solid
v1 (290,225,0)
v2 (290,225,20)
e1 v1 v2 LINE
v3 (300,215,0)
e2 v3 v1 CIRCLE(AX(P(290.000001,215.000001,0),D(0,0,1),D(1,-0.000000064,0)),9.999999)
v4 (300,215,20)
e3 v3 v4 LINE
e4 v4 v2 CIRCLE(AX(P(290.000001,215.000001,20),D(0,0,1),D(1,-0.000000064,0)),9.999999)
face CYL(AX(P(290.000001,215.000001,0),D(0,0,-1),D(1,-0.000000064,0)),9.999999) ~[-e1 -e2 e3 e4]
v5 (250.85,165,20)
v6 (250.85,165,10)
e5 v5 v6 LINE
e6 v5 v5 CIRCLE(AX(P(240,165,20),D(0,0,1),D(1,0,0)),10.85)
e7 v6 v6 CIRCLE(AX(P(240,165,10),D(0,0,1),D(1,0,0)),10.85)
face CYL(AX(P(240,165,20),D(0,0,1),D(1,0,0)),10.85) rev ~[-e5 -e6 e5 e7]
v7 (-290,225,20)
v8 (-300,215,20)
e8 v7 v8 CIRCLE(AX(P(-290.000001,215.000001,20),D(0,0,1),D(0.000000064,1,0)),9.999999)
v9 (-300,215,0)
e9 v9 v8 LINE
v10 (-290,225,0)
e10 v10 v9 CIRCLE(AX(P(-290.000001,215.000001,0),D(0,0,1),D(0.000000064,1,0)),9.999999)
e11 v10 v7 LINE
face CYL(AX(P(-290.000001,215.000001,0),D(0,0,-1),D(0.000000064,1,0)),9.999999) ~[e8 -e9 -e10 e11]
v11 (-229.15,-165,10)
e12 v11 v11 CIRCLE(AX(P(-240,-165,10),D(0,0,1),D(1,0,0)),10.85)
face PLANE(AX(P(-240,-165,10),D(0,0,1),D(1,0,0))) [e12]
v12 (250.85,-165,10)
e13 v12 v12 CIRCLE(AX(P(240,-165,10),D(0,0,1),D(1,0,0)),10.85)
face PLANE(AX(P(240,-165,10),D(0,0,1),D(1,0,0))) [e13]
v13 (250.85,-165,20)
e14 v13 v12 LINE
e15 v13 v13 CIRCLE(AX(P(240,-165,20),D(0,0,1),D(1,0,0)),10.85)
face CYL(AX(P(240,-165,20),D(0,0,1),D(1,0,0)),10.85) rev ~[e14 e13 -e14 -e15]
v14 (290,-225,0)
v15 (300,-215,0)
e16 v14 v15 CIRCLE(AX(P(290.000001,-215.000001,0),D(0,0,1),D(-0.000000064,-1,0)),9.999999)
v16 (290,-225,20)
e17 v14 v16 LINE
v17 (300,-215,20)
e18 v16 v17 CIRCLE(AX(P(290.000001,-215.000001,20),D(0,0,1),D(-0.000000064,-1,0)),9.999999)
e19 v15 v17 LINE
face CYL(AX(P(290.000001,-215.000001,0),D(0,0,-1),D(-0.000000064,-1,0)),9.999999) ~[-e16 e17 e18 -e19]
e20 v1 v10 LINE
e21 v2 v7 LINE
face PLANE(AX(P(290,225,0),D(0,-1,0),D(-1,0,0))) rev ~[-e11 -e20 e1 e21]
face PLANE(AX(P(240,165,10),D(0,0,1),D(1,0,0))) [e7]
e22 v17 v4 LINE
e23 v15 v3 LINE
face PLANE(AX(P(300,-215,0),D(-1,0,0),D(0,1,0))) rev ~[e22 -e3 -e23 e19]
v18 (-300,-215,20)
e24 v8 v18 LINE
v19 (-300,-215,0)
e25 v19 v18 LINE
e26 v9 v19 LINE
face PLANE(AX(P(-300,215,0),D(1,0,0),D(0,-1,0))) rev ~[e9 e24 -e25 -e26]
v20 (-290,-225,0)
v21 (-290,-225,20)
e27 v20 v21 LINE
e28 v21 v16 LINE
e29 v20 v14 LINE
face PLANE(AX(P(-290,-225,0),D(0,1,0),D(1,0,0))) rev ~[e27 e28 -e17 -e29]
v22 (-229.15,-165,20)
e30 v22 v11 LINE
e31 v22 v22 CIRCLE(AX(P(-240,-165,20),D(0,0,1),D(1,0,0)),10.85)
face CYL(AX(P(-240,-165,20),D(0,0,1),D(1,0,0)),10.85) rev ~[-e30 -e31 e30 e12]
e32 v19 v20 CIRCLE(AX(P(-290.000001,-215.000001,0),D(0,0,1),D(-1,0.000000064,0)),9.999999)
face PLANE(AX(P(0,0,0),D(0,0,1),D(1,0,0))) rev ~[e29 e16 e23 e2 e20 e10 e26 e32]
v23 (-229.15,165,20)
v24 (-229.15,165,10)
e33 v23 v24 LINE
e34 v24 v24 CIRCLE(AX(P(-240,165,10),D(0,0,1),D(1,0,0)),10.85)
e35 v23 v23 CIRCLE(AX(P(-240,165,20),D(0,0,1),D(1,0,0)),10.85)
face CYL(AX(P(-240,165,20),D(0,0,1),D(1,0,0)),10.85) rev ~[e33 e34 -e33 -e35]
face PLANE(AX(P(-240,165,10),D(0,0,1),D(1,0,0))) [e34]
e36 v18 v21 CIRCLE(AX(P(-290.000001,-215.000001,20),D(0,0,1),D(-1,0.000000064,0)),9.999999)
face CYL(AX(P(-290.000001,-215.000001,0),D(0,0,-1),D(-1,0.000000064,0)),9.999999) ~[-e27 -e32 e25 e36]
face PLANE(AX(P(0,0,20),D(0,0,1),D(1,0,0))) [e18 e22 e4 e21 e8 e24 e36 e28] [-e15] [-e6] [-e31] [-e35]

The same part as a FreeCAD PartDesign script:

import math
import FreeCAD as App
import Part
import Sketcher

V = App.Vector

doc = App.newDocument("Part")
body = doc.addObject("PartDesign::Body", "Body")

sketch1 = body.newObject("Sketcher::SketchObject", "Sketch")
sketch1.AttachmentSupport = (doc.getObject("XY_Plane"), [""])
sketch1.MapMode = "FlatFace"
sketch1.addGeometry([
    Part.LineSegment(V(-290, -225, 0), V(290, -225, 0)),
    Part.ArcOfCircle(Part.Circle(V(290, -215, 0), V(0, 0, 1), 10), math.radians(-90), math.radians(0)),
    Part.LineSegment(V(300, -215, 0), V(300, 215, 0)),
    Part.ArcOfCircle(Part.Circle(V(290, 215, 0), V(0, 0, 1), 10), math.radians(0), math.radians(90)),
    Part.LineSegment(V(290, 225, 0), V(-290, 225, 0)),
    Part.ArcOfCircle(Part.Circle(V(-290, 215, 0), V(0, 0, 1), 10), math.radians(90), math.radians(180)),
    Part.LineSegment(V(-300, 215, 0), V(-300, -215, 0)),
    Part.ArcOfCircle(Part.Circle(V(-290, -215, 0), V(0, 0, 1), 10), math.radians(180), math.radians(270)),
], False)
sketch1.addConstraint([
    Sketcher.Constraint("Tangent", 0, 2, 1, 1),
    Sketcher.Constraint("Tangent", 1, 2, 2, 1),
    Sketcher.Constraint("Tangent", 2, 2, 3, 1),
    Sketcher.Constraint("Tangent", 3, 2, 4, 1),
    Sketcher.Constraint("Tangent", 4, 2, 5, 1),
    Sketcher.Constraint("Tangent", 5, 2, 6, 1),
    Sketcher.Constraint("Tangent", 6, 2, 7, 1),
    Sketcher.Constraint("Tangent", 7, 2, 0, 1),
    Sketcher.Constraint("Horizontal", 0),
    Sketcher.Constraint("Vertical", 2),
    Sketcher.Constraint("Horizontal", 4),
    Sketcher.Constraint("Vertical", 6),
    Sketcher.Constraint("Equal", 1, 3),
    Sketcher.Constraint("Equal", 3, 5),
    Sketcher.Constraint("Equal", 5, 7),
    Sketcher.Constraint("Symmetric", 1, 3, 5, 3, -1, 1),
    Sketcher.Constraint("Radius", 1, 9.999999),
    Sketcher.Constraint("DistanceX", 0, 1, 0, 2, 580.0),
    Sketcher.Constraint("DistanceY", 2, 1, 2, 2, 430.0),
])
pad1 = body.newObject("PartDesign::Pad", "Pad")
pad1.Profile = sketch1
pad1.Length = 20

sketch2 = body.newObject("Sketcher::SketchObject", "Sketch001")
sketch2.AttachmentSupport = (doc.getObject("XY_Plane"), [""])
sketch2.MapMode = "FlatFace"
sketch2.AttachmentOffset = App.Placement(V(0, 0, 20), App.Rotation())
sketch2.addGeometry([
    Part.Circle(V(-240, 165, 0), V(0, 0, 1), 11),
    Part.Circle(V(240, 165, 0), V(0, 0, 1), 11),
    Part.Circle(V(240, -165, 0), V(0, 0, 1), 11),
    Part.Circle(V(-240, -165, 0), V(0, 0, 1), 11),
], False)
sketch2.addConstraint([
    Sketcher.Constraint("Equal", 0, 1),
    Sketcher.Constraint("Equal", 1, 2),
    Sketcher.Constraint("Equal", 2, 3),
    Sketcher.Constraint("Symmetric", 0, 3, 2, 3, -1, 1),
    Sketcher.Constraint("Symmetric", 1, 3, 3, 3, -1, 1),
    Sketcher.Constraint("Symmetric", 0, 3, 1, 3, -2),
    Sketcher.Constraint("Diameter", 0, 21.7),
    Sketcher.Constraint("DistanceX", 0, 3, -1, 1, 240.0),
    Sketcher.Constraint("DistanceY", -1, 1, 0, 3, 165.0),
])
pocket1 = body.newObject("PartDesign::Pocket", "Pocket")
pocket1.Profile = sketch2
pocket1.Length = 10

doc.recompute()
